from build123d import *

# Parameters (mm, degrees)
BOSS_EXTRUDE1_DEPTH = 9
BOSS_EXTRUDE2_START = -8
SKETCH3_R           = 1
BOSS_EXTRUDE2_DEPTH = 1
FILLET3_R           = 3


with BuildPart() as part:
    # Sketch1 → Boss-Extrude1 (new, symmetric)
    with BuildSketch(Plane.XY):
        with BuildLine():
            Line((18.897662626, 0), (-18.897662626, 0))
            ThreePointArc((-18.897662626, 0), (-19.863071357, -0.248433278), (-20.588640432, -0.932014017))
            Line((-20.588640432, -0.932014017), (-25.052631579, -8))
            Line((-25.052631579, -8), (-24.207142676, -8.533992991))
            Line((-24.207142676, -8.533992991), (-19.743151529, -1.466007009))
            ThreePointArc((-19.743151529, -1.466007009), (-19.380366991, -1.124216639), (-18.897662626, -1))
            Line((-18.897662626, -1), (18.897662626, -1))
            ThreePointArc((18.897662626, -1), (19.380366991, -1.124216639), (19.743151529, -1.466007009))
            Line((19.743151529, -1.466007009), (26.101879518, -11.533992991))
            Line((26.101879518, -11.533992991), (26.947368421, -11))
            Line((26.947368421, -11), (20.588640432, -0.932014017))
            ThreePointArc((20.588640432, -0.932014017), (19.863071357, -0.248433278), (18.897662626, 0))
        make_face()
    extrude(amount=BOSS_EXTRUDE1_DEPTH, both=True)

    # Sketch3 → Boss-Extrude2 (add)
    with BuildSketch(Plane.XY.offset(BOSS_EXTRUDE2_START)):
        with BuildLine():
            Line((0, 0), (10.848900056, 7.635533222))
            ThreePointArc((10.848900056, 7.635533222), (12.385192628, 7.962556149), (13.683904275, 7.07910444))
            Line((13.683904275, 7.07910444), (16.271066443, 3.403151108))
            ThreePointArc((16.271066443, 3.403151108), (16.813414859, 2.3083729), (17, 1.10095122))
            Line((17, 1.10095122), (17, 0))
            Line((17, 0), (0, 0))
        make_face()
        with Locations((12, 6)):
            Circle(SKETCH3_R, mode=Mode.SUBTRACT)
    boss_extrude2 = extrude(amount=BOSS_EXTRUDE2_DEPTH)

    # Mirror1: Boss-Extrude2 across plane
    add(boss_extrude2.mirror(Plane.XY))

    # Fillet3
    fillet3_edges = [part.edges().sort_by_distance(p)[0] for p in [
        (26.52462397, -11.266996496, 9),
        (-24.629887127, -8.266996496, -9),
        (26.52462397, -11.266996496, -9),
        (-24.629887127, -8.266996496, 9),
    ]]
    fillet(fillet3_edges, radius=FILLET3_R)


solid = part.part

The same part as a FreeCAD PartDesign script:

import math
import FreeCAD as App
import Part
import Sketcher

V = App.Vector


def edges_at(feature, points):
    """Names of the edges that pass closest to the given points."""
    edges = feature.Shape.Edges
    near = lambda p: min(range(len(edges)), key=lambda i: edges[i].distToShape(Part.Vertex(*p))[0])
    return sorted({f"Edge{near(p) + 1}" for p in points})

doc = App.newDocument("Part")
body = doc.addObject("PartDesign::Body", "Body")

# Sketch on XY plane
sketch1 = body.newObject("Sketcher::SketchObject", "Sketch")
sketch1.AttachmentSupport = (doc.getObject("XY_Plane"), [""])
sketch1.MapMode = "FlatFace"
sketch1.addGeometry([
    Part.LineSegment(V(18.897663, 0, 0), V(-18.897663, 0, 0)),  # 0
    Part.ArcOfCircle(Part.Circle(V(-18.897663, -2, 0), V(0, 0, 1), 2), math.radians(90), math.radians(147.724356)),  # 1
    Part.LineSegment(V(-20.58864, -0.932014, 0), V(-25.052632, -8, 0)),  # 2
    Part.LineSegment(V(-25.052632, -8, 0), V(-24.207143, -8.533993, 0)),  # 3
    Part.LineSegment(V(-24.207143, -8.533993, 0), V(-19.743152, -1.466007, 0)),  # 4
    Part.ArcOfCircle(Part.Circle(V(-18.897663, -2, 0), V(0, 0, 1), 1), math.radians(90), math.radians(147.724356)),  # 5
    Part.LineSegment(V(-18.897663, -1, 0), V(18.897663, -1, 0)),  # 6
    Part.ArcOfCircle(Part.Circle(V(18.897663, -2, 0), V(0, 0, 1), 1), math.radians(32.275644), math.radians(90)),  # 7
    Part.LineSegment(V(19.743152, -1.466007, 0), V(26.10188, -11.533993, 0)),  # 8
    Part.LineSegment(V(26.10188, -11.533993, 0), V(26.947368, -11, 0)),  # 9
    Part.LineSegment(V(26.947368, -11, 0), V(20.58864, -0.932014, 0)),  # 10
    Part.ArcOfCircle(Part.Circle(V(18.897663, -2, 0), V(0, 0, 1), 2), math.radians(32.275644), math.radians(90)),  # 11
], False)
sketch1.addConstraint([
    Sketcher.Constraint("Tangent", 0, 2, 1, 1),
    Sketcher.Constraint("Tangent", 1, 2, 2, 1),
    Sketcher.Constraint("Coincident", 2, 2, 3, 1),
    Sketcher.Constraint("Coincident", 3, 2, 4, 1),
    Sketcher.Constraint("Tangent", 4, 2, 5, 2),
    Sketcher.Constraint("Tangent", 5, 1, 6, 1),
    Sketcher.Constraint("Tangent", 6, 2, 7, 2),
    Sketcher.Constraint("Tangent", 7, 1, 8, 1),
    Sketcher.Constraint("Coincident", 8, 2, 9, 1),
    Sketcher.Constraint("Coincident", 9, 2, 10, 1),
    Sketcher.Constraint("Tangent", 10, 2, 11, 1),
    Sketcher.Constraint("Tangent", 11, 2, 0, 1),
    Sketcher.Constraint("Horizontal", 0),
    Sketcher.Constraint("Horizontal", 6),
    Sketcher.Constraint("Coincident", 5, 3, 1, 3),
    Sketcher.Constraint("Coincident", 11, 3, 7, 3),
    Sketcher.Constraint("Equal", 5, 7),
    Sketcher.Constraint("Symmetric", 0, 2, 11, 2, -1, 1),
    Sketcher.Constraint("Perpendicular", 2, 3),
    Sketcher.Constraint("Perpendicular", 3, 4),
    Sketcher.Constraint("Perpendicular", 8, 9),
    Sketcher.Constraint("Perpendicular", 9, 10),
    Sketcher.Constraint("Horizontal", 4, 2, 7, 1),
    Sketcher.Constraint("Radius", 1, 2.0),
    Sketcher.Constraint("Radius", 5, 1.0),
    Sketcher.Constraint("DistanceY", 2, 2, -1, 1, 8.0),
    Sketcher.Constraint("DistanceY", 9, 2, -1, 1, 11.0),
    Sketcher.Constraint("DistanceX", 0, 2, 0, 1, 37.795325),
    Sketcher.Constraint("DistanceX", 1, 2, -1, 1, 20.58864),
])
pad1 = body.newObject("PartDesign::Pad", "Pad")
pad1.Profile = sketch1
pad1.Length = 18
pad1.Midplane = True

# Sketch on XY plane
sketch2 = body.newObject("Sketcher::SketchObject", "Sketch001")
sketch2.AttachmentSupport = (doc.getObject("XY_Plane"), [""])
sketch2.MapMode = "FlatFace"
sketch2.AttachmentOffset = App.Placement(V(0, 0, -8), App.Rotation())
sketch2.addGeometry([
    Part.LineSegment(V(10.8489, 7.635533, 0), V(0, 0, 0)),  # 0
    Part.LineSegment(V(0, 0, 0), V(17, 0, 0)),  # 1
    Part.LineSegment(V(17, 0, 0), V(17, 1.100951, 0)),  # 2
    Part.ArcOfCircle(Part.Circle(V(13, 1.100951, 0), V(0, 0, 1), 4), math.radians(0), math.radians(35.138156)),  # 3
    Part.LineSegment(V(16.271066, 3.403151, 0), V(13.683904, 7.079104, 0)),  # 4
    Part.ArcOfCircle(Part.Circle(V(12, 6, 0), V(0, 0, 1), 2), math.radians(32.653162), math.radians(125.138156)),  # 5
    Part.Circle(V(12, 6, 0), V(0, 0, 1), 1),  # 6
], False)
sketch2.addConstraint([
    Sketcher.Constraint("Coincident", 0, 2, 1, 1),
    Sketcher.Constraint("Coincident", 1, 2, 2, 1),
    Sketcher.Constraint("Tangent", 2, 2, 3, 1),
    Sketcher.Constraint("Tangent", 3, 2, 4, 1),
    Sketcher.Constraint("Coincident", 4, 2, 5, 1),
    Sketcher.Constraint("Tangent", 5, 2, 0, 1),
    Sketcher.Constraint("Horizontal", 1),
    Sketcher.Constraint("Vertical", 2),
    Sketcher.Constraint("Coincident", 0, 2, -1, 1),
    Sketcher.Constraint("Coincident", 6, 3, 5, 3),
    Sketcher.Constraint("Perpendicular", 0, 4),
    Sketcher.Constraint("Diameter", 6, 2.0),
    Sketcher.Constraint("Radius", 3, 4.0),
    Sketcher.Constraint("Radius", 5, 2.0),
    Sketcher.Constraint("DistanceX", 1, 1, 1, 2, 17.0),
    Sketcher.Constraint("DistanceX", -1, 1, 5, 3, 12.0),
    Sketcher.Constraint("DistanceY", -1, 1, 5, 3, 6.0),
    Sketcher.Constraint("DistanceY", 2, 1, 2, 2, 1.100951),
])
pad2 = body.newObject("PartDesign::Pad", "Pad001")
pad2.Profile = sketch2
pad2.Length = 1
doc.recompute()

mirrored = body.newObject("PartDesign::Mirrored", "Mirrored")
mirrored.Originals = [pad2]
mirrored.MirrorPlane = (doc.getObject("XY_Plane"), [""])
body.Tip = mirrored
doc.recompute()

fillet = body.newObject("PartDesign::Fillet", "Fillet")
fillet.Base = (mirrored, edges_at(mirrored, [
    (26.525, -11.267, 9),
    (-24.63, -8.267, -9),
    (26.525, -11.267, -9),
    (-24.63, -8.267, 9),
]))
fillet.Radius = 3

doc.recompute()
